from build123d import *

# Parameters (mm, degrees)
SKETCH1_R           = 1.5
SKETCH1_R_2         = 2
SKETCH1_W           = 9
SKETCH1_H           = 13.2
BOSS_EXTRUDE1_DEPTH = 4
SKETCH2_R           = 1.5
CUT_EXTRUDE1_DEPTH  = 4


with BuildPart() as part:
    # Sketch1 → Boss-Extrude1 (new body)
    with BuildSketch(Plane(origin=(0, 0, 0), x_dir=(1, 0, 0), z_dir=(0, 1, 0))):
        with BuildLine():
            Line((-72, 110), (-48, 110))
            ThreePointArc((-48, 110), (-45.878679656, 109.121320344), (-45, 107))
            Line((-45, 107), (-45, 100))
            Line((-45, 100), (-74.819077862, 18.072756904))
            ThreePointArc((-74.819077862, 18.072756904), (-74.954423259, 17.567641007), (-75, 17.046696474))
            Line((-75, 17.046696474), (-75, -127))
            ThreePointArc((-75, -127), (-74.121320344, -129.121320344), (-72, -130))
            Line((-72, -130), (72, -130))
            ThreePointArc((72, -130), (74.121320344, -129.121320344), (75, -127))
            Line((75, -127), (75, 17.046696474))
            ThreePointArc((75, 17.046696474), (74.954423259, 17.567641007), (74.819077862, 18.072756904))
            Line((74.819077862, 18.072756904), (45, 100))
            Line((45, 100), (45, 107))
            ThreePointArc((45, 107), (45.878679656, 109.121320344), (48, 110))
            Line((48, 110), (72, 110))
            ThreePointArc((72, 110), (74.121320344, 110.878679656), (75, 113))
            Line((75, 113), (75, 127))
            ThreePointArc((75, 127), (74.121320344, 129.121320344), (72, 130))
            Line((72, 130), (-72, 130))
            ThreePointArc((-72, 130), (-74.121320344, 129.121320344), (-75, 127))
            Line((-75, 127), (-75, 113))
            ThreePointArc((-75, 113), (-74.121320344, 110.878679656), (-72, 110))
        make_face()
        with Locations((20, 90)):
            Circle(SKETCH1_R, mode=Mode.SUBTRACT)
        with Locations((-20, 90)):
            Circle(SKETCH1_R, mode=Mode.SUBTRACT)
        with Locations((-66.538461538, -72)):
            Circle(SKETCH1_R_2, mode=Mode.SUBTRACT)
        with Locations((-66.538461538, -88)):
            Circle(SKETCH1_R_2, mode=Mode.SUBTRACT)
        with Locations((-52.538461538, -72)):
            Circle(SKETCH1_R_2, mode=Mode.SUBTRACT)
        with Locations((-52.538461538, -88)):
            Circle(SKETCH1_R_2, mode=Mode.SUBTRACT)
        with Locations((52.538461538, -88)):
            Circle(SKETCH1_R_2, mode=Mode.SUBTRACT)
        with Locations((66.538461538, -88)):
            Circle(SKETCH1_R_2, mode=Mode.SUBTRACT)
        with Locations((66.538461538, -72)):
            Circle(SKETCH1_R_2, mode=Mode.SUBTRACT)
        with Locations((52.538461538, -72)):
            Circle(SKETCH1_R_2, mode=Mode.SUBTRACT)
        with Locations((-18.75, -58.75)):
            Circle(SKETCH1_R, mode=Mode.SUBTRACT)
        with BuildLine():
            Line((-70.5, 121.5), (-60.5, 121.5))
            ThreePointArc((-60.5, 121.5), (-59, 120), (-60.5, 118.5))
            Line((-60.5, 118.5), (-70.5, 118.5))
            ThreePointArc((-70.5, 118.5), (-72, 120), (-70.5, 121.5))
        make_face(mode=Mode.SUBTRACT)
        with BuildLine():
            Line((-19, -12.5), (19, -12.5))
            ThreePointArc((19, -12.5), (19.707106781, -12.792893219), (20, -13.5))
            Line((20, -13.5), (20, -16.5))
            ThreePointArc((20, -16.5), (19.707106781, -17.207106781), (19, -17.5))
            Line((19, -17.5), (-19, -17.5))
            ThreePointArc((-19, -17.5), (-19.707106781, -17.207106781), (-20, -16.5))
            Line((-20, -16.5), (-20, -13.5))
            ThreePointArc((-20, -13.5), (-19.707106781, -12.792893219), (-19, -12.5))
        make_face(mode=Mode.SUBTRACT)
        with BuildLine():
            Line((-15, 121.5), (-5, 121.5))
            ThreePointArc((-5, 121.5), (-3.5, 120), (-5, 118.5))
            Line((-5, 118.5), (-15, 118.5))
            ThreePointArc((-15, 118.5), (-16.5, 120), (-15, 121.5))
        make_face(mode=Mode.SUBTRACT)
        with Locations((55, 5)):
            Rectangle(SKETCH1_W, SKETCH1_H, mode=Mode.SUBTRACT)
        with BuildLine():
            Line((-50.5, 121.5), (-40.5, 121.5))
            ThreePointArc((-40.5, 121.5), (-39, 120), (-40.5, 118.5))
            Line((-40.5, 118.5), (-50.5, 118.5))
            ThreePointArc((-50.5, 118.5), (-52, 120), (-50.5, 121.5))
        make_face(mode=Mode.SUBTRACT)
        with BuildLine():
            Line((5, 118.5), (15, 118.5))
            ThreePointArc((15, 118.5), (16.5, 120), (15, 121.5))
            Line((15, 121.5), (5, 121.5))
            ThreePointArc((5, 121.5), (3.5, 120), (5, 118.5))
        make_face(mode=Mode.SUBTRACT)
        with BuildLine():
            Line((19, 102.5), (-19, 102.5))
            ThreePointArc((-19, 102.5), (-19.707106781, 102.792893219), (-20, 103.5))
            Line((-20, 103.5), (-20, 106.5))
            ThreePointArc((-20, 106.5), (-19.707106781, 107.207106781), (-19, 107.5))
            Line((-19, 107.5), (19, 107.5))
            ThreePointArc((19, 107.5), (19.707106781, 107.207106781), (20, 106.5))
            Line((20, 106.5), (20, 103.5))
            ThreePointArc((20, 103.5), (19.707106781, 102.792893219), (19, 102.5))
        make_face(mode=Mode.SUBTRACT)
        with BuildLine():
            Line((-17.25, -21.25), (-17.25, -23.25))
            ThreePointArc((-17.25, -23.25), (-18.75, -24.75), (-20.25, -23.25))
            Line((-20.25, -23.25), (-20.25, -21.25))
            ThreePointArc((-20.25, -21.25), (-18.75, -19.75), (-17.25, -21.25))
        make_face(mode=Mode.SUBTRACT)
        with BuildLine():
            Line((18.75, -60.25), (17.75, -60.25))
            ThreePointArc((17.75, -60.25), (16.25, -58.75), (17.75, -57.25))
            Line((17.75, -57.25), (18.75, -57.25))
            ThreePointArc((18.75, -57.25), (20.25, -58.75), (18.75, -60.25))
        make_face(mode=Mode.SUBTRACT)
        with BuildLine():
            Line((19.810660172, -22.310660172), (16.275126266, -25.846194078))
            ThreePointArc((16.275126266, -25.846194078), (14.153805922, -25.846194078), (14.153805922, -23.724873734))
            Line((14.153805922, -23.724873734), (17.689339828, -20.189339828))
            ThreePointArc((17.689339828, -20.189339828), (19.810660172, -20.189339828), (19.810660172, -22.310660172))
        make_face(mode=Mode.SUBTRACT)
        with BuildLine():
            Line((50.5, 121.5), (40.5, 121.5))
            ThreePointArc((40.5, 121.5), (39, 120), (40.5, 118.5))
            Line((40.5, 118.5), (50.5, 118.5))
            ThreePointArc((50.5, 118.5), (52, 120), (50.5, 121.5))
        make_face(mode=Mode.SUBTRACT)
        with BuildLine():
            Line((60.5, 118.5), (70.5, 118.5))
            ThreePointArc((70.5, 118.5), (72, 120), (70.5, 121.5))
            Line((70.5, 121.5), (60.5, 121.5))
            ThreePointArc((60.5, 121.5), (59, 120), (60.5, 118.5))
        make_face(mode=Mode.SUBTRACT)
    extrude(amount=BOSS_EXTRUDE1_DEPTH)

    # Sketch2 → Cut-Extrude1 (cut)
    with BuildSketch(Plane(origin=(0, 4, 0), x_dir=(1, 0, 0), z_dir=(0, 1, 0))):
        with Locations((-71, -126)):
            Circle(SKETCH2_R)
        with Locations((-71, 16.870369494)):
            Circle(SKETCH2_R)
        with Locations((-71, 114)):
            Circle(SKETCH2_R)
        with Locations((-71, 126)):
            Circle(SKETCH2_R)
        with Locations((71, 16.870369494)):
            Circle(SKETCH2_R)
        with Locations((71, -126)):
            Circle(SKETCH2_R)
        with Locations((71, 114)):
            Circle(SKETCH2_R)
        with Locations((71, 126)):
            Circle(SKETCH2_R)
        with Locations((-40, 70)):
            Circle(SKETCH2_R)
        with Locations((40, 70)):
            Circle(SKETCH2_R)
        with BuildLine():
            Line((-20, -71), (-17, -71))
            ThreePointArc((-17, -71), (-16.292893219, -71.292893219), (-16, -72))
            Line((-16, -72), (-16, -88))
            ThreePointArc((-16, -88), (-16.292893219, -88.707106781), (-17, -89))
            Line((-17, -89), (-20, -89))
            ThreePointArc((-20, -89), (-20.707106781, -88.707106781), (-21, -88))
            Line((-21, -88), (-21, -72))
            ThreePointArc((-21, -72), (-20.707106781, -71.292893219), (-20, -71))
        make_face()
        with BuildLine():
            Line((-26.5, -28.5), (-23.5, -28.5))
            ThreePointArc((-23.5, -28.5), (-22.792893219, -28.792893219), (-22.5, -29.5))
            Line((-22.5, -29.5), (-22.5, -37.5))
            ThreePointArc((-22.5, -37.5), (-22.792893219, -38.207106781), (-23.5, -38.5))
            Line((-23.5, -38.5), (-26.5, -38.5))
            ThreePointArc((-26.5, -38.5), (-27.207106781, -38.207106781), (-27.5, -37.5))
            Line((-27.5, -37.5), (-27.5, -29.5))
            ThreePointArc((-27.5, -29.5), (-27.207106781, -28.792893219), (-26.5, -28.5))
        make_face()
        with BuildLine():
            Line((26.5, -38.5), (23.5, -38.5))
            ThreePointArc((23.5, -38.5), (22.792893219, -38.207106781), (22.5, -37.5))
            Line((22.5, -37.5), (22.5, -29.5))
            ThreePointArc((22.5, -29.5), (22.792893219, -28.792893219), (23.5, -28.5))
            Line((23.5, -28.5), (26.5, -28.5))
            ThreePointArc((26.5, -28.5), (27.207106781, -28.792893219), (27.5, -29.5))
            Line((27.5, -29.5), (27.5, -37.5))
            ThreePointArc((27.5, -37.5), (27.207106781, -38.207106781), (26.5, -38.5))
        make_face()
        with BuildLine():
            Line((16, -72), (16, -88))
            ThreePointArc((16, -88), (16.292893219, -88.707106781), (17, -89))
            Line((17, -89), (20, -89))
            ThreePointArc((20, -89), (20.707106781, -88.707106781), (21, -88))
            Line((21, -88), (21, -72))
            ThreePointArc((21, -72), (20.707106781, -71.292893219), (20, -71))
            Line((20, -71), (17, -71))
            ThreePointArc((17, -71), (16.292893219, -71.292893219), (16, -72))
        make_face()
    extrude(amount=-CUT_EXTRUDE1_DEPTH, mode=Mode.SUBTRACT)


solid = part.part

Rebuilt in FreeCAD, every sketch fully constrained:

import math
import FreeCAD as App
import Part
import Sketcher

V = App.Vector
Q = App.Units.Quantity

doc = App.newDocument("Part")
params = doc.addObject("Spreadsheet::Sheet", "Params")
for row, (alias, value) in enumerate([
    ("sketch1_diameter", "4 mm"),
    ("sketch1_diameter2", "3 mm"),
    ("sketch1_radius", "3 mm"),
    ("sketch1_radius2", "1 mm"),
    ("sketch1_width", "24 mm"),
    ("pad1_length", "4 mm"),
    ("sketch2_diameter", "3 mm"),
    ("sketch2_radius", "1 mm"),
    ("sketch2_width", "3 mm"),
    ("sketch2_height", "16 mm"),
    ("sketch2_height2", "8 mm"),
    ("pocket1_length", "4 mm"),
], start=1):
    params.set(f"A{row}", alias)
    params.set(f"B{row}", "=" + value)
    params.setAlias(f"B{row}", alias)

body = doc.addObject("PartDesign::Body", "Body")

# Sketch on XZ plane
sketch1 = body.newObject("Sketcher::SketchObject", "Sketch")
sketch1.AttachmentSupport = (doc.getObject("XZ_Plane"), [""])
sketch1.MapMode = "FlatFace"
sketch1.addGeometry(Part.LineSegment(V(-72, -110, 0), V(-48, -110, 0)), False)
sketch1.addGeometry(Part.ArcOfCircle(Part.Circle(V(-48, -107, 0), V(0, 0, 1), 3), math.radians(-90), math.radians(0)), False)
sketch1.addGeometry(Part.LineSegment(V(-45, -107, 0), V(-45, -100, 0)), False)
sketch1.addGeometry(Part.LineSegment(V(-45, -100, 0), V(-74.8, -18.1, 0)), False)
sketch1.addGeometry(Part.ArcOfCircle(Part.Circle(V(-72, -17, 0), V(0, 0, 1), 3), math.radians(180), math.radians(200)), False)
sketch1.addGeometry(Part.LineSegment(V(-75, -17, 0), V(-75, 127, 0)), False)
sketch1.addGeometry(Part.ArcOfCircle(Part.Circle(V(-72, 127, 0), V(0, 0, 1), 3), math.radians(90), math.radians(180)), False)
sketch1.addGeometry(Part.LineSegment(V(-72, 130, 0), V(72, 130, 0)), False)
sketch1.addGeometry(Part.ArcOfCircle(Part.Circle(V(72, 127, 0), V(0, 0, 1), 3), math.radians(0), math.radians(90)), False)
sketch1.addGeometry(Part.LineSegment(V(75, 127, 0), V(75, -17, 0)), False)
sketch1.addGeometry(Part.ArcOfCircle(Part.Circle(V(72, -17, 0), V(0, 0, 1), 3), math.radians(-20), math.radians(0)), False)
sketch1.addGeometry(Part.LineSegment(V(74.8, -18.1, 0), V(45, -100, 0)), False)
sketch1.addGeometry(Part.LineSegment(V(45, -100, 0), V(45, -107, 0)), False)
sketch1.addGeometry(Part.ArcOfCircle(Part.Circle(V(48, -107, 0), V(0, 0, 1), 3), math.radians(180), math.radians(270)), False)
sketch1.addGeometry(Part.LineSegment(V(48, -110, 0), V(72, -110, 0)), False)
sketch1.addGeometry(Part.ArcOfCircle(Part.Circle(V(72, -113, 0), V(0, 0, 1), 3), math.radians(0), math.radians(90)), False)
sketch1.addGeometry(Part.LineSegment(V(75, -113, 0), V(75, -127, 0)), False)
sketch1.addGeometry(Part.ArcOfCircle(Part.Circle(V(72, -127, 0), V(0, 0, 1), 3), math.radians(-90), math.radians(0)), False)
sketch1.addGeometry(Part.LineSegment(V(72, -130, 0), V(-72, -130, 0)), False)
sketch1.addGeometry(Part.ArcOfCircle(Part.Circle(V(-72, -127, 0), V(0, 0, 1), 3), math.radians(180), math.radians(270)), False)
sketch1.addGeometry(Part.LineSegment(V(-75, -127, 0), V(-75, -113, 0)), False)
sketch1.addGeometry(Part.ArcOfCircle(Part.Circle(V(-72, -113, 0), V(0, 0, 1), 3), math.radians(90), math.radians(180)), False)
sketch1.addGeometry(Part.Circle(V(-66.5, 88, 0), V(0, 0, 1), 2), False)
sketch1.addGeometry(Part.Circle(V(-66.5, 72, 0), V(0, 0, 1), 2), False)
sketch1.addGeometry(Part.Circle(V(-52.5, 88, 0), V(0, 0, 1), 2), False)
sketch1.addGeometry(Part.Circle(V(-52.5, 72, 0), V(0, 0, 1), 2), False)
sketch1.addGeometry(Part.Circle(V(-18.8, 58.8, 0), V(0, 0, 1), 1.5), False)
sketch1.addGeometry(Part.ArcOfCircle(Part.Circle(V(-18.8, 21.2, 0), V(0, 0, 1), 1.5), math.radians(180), math.radians(360)), False)
sketch1.addGeometry(Part.LineSegment(V(-17.2, 21.2, 0), V(-17.2, 23.2, 0)), False)
sketch1.addGeometry(Part.ArcOfCircle(Part.Circle(V(-18.8, 23.2, 0), V(0, 0, 1), 1.5), math.radians(0), math.radians(180)), False)
sketch1.addGeometry(Part.LineSegment(V(-20.2, 23.2, 0), V(-20.2, 21.2, 0)), False)
sketch1.addGeometry(Part.ArcOfCircle(Part.Circle(V(18.8, 58.8, 0), V(0, 0, 1), 1.5), math.radians(-90), math.radians(90)), False)
sketch1.addGeometry(Part.LineSegment(V(18.8, 60.2, 0), V(17.8, 60.2, 0)), False)
sketch1.addGeometry(Part.ArcOfCircle(Part.Circle(V(17.8, 58.8, 0), V(0, 0, 1), 1.5), math.radians(90), math.radians(270)), False)
sketch1.addGeometry(Part.LineSegment(V(17.8, 57.2, 0), V(18.8, 57.2, 0)), False)
sketch1.addGeometry(Part.Circle(V(52.5, 88, 0), V(0, 0, 1), 2), False)
sketch1.addGeometry(Part.Circle(V(52.5, 72, 0), V(0, 0, 1), 2), False)
sketch1.addGeometry(Part.Circle(V(66.5, 88, 0), V(0, 0, 1), 2), False)
sketch1.addGeometry(Part.Circle(V(66.5, 72, 0), V(0, 0, 1), 2), False)
sketch1.addGeometry(Part.ArcOfCircle(Part.Circle(V(-19, 13.5, 0), V(0, 0, 1), 1), math.radians(-180), math.radians(-90)), False)
sketch1.addGeometry(Part.LineSegment(V(-19, 12.5, 0), V(19, 12.5, 0)), False)
sketch1.addGeometry(Part.ArcOfCircle(Part.Circle(V(19, 13.5, 0), V(0, 0, 1), 1), math.radians(-90), math.radians(0)), False)
sketch1.addGeometry(Part.LineSegment(V(20, 13.5, 0), V(20, 16.5, 0)), False)
sketch1.addGeometry(Part.ArcOfCircle(Part.Circle(V(19, 16.5, 0), V(0, 0, 1), 1), math.radians(0), math.radians(90)), False)
sketch1.addGeometry(Part.LineSegment(V(19, 17.5, 0), V(-19, 17.5, 0)), False)
sketch1.addGeometry(Part.ArcOfCircle(Part.Circle(V(-19, 16.5, 0), V(0, 0, 1), 1), math.radians(90), math.radians(180)), False)
sketch1.addGeometry(Part.LineSegment(V(-20, 16.5, 0), V(-20, 13.5, 0)), False)
sketch1.addGeometry(Part.ArcOfCircle(Part.Circle(V(18.8, 21.2, 0), V(0, 0, 1), 1.5), math.radians(-135), math.radians(45)), False)
sketch1.addGeometry(Part.LineSegment(V(19.8, 22.3, 0), V(16.3, 25.8, 0)), False)
sketch1.addGeometry(Part.ArcOfCircle(Part.Circle(V(15.2, 24.8, 0), V(0, 0, 1), 1.5), math.radians(45), math.radians(225)), False)
sketch1.addGeometry(Part.LineSegment(V(14.2, 23.7, 0), V(17.7, 20.2, 0)), False)
sketch1.addGeometry(Part.LineSegment(V(59.5, 1.6, 0), V(50.5, 1.6, 0)), False)
sketch1.addGeometry(Part.LineSegment(V(50.5, 1.6, 0), V(50.5, -11.6, 0)), False)
sketch1.addGeometry(Part.LineSegment(V(50.5, -11.6, 0), V(59.5, -11.6, 0)), False)
sketch1.addGeometry(Part.LineSegment(V(59.5, -11.6, 0), V(59.5, 1.6, 0)), False)
sketch1.addGeometry(Part.ArcOfCircle(Part.Circle(V(-70.5, -120, 0), V(0, 0, 1), 1.5), math.radians(90), math.radians(270)), False)
sketch1.addGeometry(Part.LineSegment(V(-70.5, -121.5, 0), V(-60.5, -121.5, 0)), False)
sketch1.addGeometry(Part.ArcOfCircle(Part.Circle(V(-60.5, -120, 0), V(0, 0, 1), 1.5), math.radians(-90), math.radians(90)), False)
sketch1.addGeometry(Part.LineSegment(V(-60.5, -118.5, 0), V(-70.5, -118.5, 0)), False)
sketch1.addGeometry(Part.ArcOfCircle(Part.Circle(V(-50.5, -120, 0), V(0, 0, 1), 1.5), math.radians(90), math.radians(270)), False)
sketch1.addGeometry(Part.LineSegment(V(-50.5, -121.5, 0), V(-40.5, -121.5, 0)), False)
sketch1.addGeometry(Part.ArcOfCircle(Part.Circle(V(-40.5, -120, 0), V(0, 0, 1), 1.5), math.radians(-90), math.radians(90)), False)
sketch1.addGeometry(Part.LineSegment(V(-40.5, -118.5, 0), V(-50.5, -118.5, 0)), False)
sketch1.addGeometry(Part.Circle(V(-20, -90, 0), V(0, 0, 1), 1.5), False)
sketch1.addGeometry(Part.ArcOfCircle(Part.Circle(V(-15, -120, 0), V(0, 0, 1), 1.5), math.radians(90), math.radians(270)), False)
sketch1.addGeometry(Part.LineSegment(V(-15, -121.5, 0), V(-5, -121.5, 0)), False)
sketch1.addGeometry(Part.ArcOfCircle(Part.Circle(V(-5, -120, 0), V(0, 0, 1), 1.5), math.radians(-90), math.radians(90)), False)
sketch1.addGeometry(Part.LineSegment(V(-5, -118.5, 0), V(-15, -118.5, 0)), False)
sketch1.addGeometry(Part.Circle(V(20, -90, 0), V(0, 0, 1), 1.5), False)
sketch1.addGeometry(Part.ArcOfCircle(Part.Circle(V(19, -103.5, 0), V(0, 0, 1), 1), math.radians(0), math.radians(90)), False)
sketch1.addGeometry(Part.LineSegment(V(19, -102.5, 0), V(-19, -102.5, 0)), False)
sketch1.addGeometry(Part.ArcOfCircle(Part.Circle(V(-19, -103.5, 0), V(0, 0, 1), 1), math.radians(90), math.radians(180)), False)
sketch1.addGeometry(Part.LineSegment(V(-20, -103.5, 0), V(-20, -106.5, 0)), False)
sketch1.addGeometry(Part.ArcOfCircle(Part.Circle(V(-19, -106.5, 0), V(0, 0, 1), 1), math.radians(-180), math.radians(-90)), False)
sketch1.addGeometry(Part.LineSegment(V(-19, -107.5, 0), V(19, -107.5, 0)), False)
sketch1.addGeometry(Part.ArcOfCircle(Part.Circle(V(19, -106.5, 0), V(0, 0, 1), 1), math.radians(-90), math.radians(0)), False)
sketch1.addGeometry(Part.LineSegment(V(20, -106.5, 0), V(20, -103.5, 0)), False)
sketch1.addGeometry(Part.LineSegment(V(15, -118.5, 0), V(5, -118.5, 0)), False)
sketch1.addGeometry(Part.ArcOfCircle(Part.Circle(V(5, -120, 0), V(0, 0, 1), 1.5), math.radians(90), math.radians(270)), False)
sketch1.addGeometry(Part.LineSegment(V(5, -121.5, 0), V(15, -121.5, 0)), False)
sketch1.addGeometry(Part.ArcOfCircle(Part.Circle(V(15, -120, 0), V(0, 0, 1), 1.5), math.radians(-90), math.radians(90)), False)
sketch1.addGeometry(Part.LineSegment(V(40.5, -121.5, 0), V(50.5, -121.5, 0)), False)
sketch1.addGeometry(Part.ArcOfCircle(Part.Circle(V(50.5, -120, 0), V(0, 0, 1), 1.5), math.radians(-90), math.radians(90)), False)
sketch1.addGeometry(Part.LineSegment(V(50.5, -118.5, 0), V(40.5, -118.5, 0)), False)
sketch1.addGeometry(Part.ArcOfCircle(Part.Circle(V(40.5, -120, 0), V(0, 0, 1), 1.5), math.radians(90), math.radians(270)), False)
sketch1.addGeometry(Part.LineSegment(V(70.5, -118.5, 0), V(60.5, -118.5, 0)), False)
sketch1.addGeometry(Part.ArcOfCircle(Part.Circle(V(60.5, -120, 0), V(0, 0, 1), 1.5), math.radians(90), math.radians(270)), False)
sketch1.addGeometry(Part.LineSegment(V(60.5, -121.5, 0), V(70.5, -121.5, 0)), False)
sketch1.addGeometry(Part.ArcOfCircle(Part.Circle(V(70.5, -120, 0), V(0, 0, 1), 1.5), math.radians(-90), math.radians(90)), False)
sketch1.addConstraint(Sketcher.Constraint("Tangent", 0, 2, 1, 1))
sketch1.addConstraint(Sketcher.Constraint("Tangent", 1, 2, 2, 1))
sketch1.addConstraint(Sketcher.Constraint("Coincident", 2, 2, 3, 1))
sketch1.addConstraint(Sketcher.Constraint("Tangent", 3, 2, 4, 2))
sketch1.addConstraint(Sketcher.Constraint("Tangent", 4, 1, 5, 1))
sketch1.addConstraint(Sketcher.Constraint("Tangent", 5, 2, 6, 2))
sketch1.addConstraint(Sketcher.Constraint("Tangent", 6, 1, 7, 1))
sketch1.addConstraint(Sketcher.Constraint("Tangent", 7, 2, 8, 2))
sketch1.addConstraint(Sketcher.Constraint("Tangent", 8, 1, 9, 1))
sketch1.addConstraint(Sketcher.Constraint("Tangent", 9, 2, 10, 2))
sketch1.addConstraint(Sketcher.Constraint("Tangent", 10, 1, 11, 1))
sketch1.addConstraint(Sketcher.Constraint("Coincident", 11, 2, 12, 1))
sketch1.addConstraint(Sketcher.Constraint("Tangent", 12, 2, 13, 1))
sketch1.addConstraint(Sketcher.Constraint("Tangent", 13, 2, 14, 1))
sketch1.addConstraint(Sketcher.Constraint("Tangent", 14, 2, 15, 2))
sketch1.addConstraint(Sketcher.Constraint("Tangent", 15, 1, 16, 1))
sketch1.addConstraint(Sketcher.Constraint("Tangent", 16, 2, 17, 2))
sketch1.addConstraint(Sketcher.Constraint("Tangent", 17, 1, 18, 1))
sketch1.addConstraint(Sketcher.Constraint("Tangent", 18, 2, 19, 2))
sketch1.addConstraint(Sketcher.Constraint("Tangent", 19, 1, 20, 1))
sketch1.addConstraint(Sketcher.Constraint("Tangent", 20, 2, 21, 2))
sketch1.addConstraint(Sketcher.Constraint("Tangent", 21, 1, 0, 1))
sketch1.addConstraint(Sketcher.Constraint("Tangent", 27, 2, 28, 1))
sketch1.addConstraint(Sketcher.Constraint("Tangent", 28, 2, 29, 1))
sketch1.addConstraint(Sketcher.Constraint("Tangent", 29, 2, 30, 1))
sketch1.addConstraint(Sketcher.Constraint("Tangent", 30, 2, 27, 1))
sketch1.addConstraint(Sketcher.Constraint("Tangent", 31, 2, 32, 1))
sketch1.addConstraint(Sketcher.Constraint("Tangent", 32, 2, 33, 1))
sketch1.addConstraint(Sketcher.Constraint("Tangent", 33, 2, 34, 1))
sketch1.addConstraint(Sketcher.Constraint("Tangent", 34, 2, 31, 1))
sketch1.addConstraint(Sketcher.Constraint("Tangent", 39, 2, 40, 1))
sketch1.addConstraint(Sketcher.Constraint("Tangent", 40, 2, 41, 1))
sketch1.addConstraint(Sketcher.Constraint("Tangent", 41, 2, 42, 1))
sketch1.addConstraint(Sketcher.Constraint("Tangent", 42, 2, 43, 1))
sketch1.addConstraint(Sketcher.Constraint("Tangent", 43, 2, 44, 1))
sketch1.addConstraint(Sketcher.Constraint("Tangent", 44, 2, 45, 1))
sketch1.addConstraint(Sketcher.Constraint("Tangent", 45, 2, 46, 1))
sketch1.addConstraint(Sketcher.Constraint("Tangent", 46, 2, 39, 1))
sketch1.addConstraint(Sketcher.Constraint("Tangent", 47, 2, 48, 1))
sketch1.addConstraint(Sketcher.Constraint("Tangent", 48, 2, 49, 1))
sketch1.addConstraint(Sketcher.Constraint("Tangent", 49, 2, 50, 1))
sketch1.addConstraint(Sketcher.Constraint("Tangent", 50, 2, 47, 1))
sketch1.addConstraint(Sketcher.Constraint("Coincident", 51, 2, 52, 1))
sketch1.addConstraint(Sketcher.Constraint("Coincident", 52, 2, 53, 1))
sketch1.addConstraint(Sketcher.Constraint("Coincident", 53, 2, 54, 1))
sketch1.addConstraint(Sketcher.Constraint("Coincident", 54, 2, 51, 1))
sketch1.addConstraint(Sketcher.Constraint("Tangent", 55, 2, 56, 1))
sketch1.addConstraint(Sketcher.Constraint("Tangent", 56, 2, 57, 1))
sketch1.addConstraint(Sketcher.Constraint("Tangent", 57, 2, 58, 1))
sketch1.addConstraint(Sketcher.Constraint("Tangent", 58, 2, 55, 1))
sketch1.addConstraint(Sketcher.Constraint("Tangent", 59, 2, 60, 1))
sketch1.addConstraint(Sketcher.Constraint("Tangent", 60, 2, 61, 1))
sketch1.addConstraint(Sketcher.Constraint("Tangent", 61, 2, 62, 1))
sketch1.addConstraint(Sketcher.Constraint("Tangent", 62, 2, 59, 1))
sketch1.addConstraint(Sketcher.Constraint("Tangent", 64, 2, 65, 1))
sketch1.addConstraint(Sketcher.Constraint("Tangent", 65, 2, 66, 1))
sketch1.addConstraint(Sketcher.Constraint("Tangent", 66, 2, 67, 1))
sketch1.addConstraint(Sketcher.Constraint("Tangent", 67, 2, 64, 1))
sketch1.addConstraint(Sketcher.Constraint("Tangent", 69, 2, 70, 1))
sketch1.addConstraint(Sketcher.Constraint("Tangent", 70, 2, 71, 1))
sketch1.addConstraint(Sketcher.Constraint("Tangent", 71, 2, 72, 1))
sketch1.addConstraint(Sketcher.Constraint("Tangent", 72, 2, 73, 1))
sketch1.addConstraint(Sketcher.Constraint("Tangent", 73, 2, 74, 1))
sketch1.addConstraint(Sketcher.Constraint("Tangent", 74, 2, 75, 1))
sketch1.addConstraint(Sketcher.Constraint("Tangent", 75, 2, 76, 1))
sketch1.addConstraint(Sketcher.Constraint("Tangent", 76, 2, 69, 1))
sketch1.addConstraint(Sketcher.Constraint("Tangent", 77, 2, 78, 1))
sketch1.addConstraint(Sketcher.Constraint("Tangent", 78, 2, 79, 1))
sketch1.addConstraint(Sketcher.Constraint("Tangent", 79, 2, 80, 1))
sketch1.addConstraint(Sketcher.Constraint("Tangent", 80, 2, 77, 1))
sketch1.addConstraint(Sketcher.Constraint("Tangent", 81, 2, 82, 1))
sketch1.addConstraint(Sketcher.Constraint("Tangent", 82, 2, 83, 1))
sketch1.addConstraint(Sketcher.Constraint("Tangent", 83, 2, 84, 1))
sketch1.addConstraint(Sketcher.Constraint("Tangent", 84, 2, 81, 1))
sketch1.addConstraint(Sketcher.Constraint("Tangent", 85, 2, 86, 1))
sketch1.addConstraint(Sketcher.Constraint("Tangent", 86, 2, 87, 1))
sketch1.addConstraint(Sketcher.Constraint("Tangent", 87, 2, 88, 1))
sketch1.addConstraint(Sketcher.Constraint("Tangent", 88, 2, 85, 1))
sketch1.addConstraint(Sketcher.Constraint("Horizontal", 0))
sketch1.addConstraint(Sketcher.Constraint("Vertical", 2))
sketch1.addConstraint(Sketcher.Constraint("Vertical", 5))
sketch1.addConstraint(Sketcher.Constraint("Horizontal", 7))
sketch1.addConstraint(Sketcher.Constraint("Vertical", 9))
sketch1.addConstraint(Sketcher.Constraint("Vertical", 12))
sketch1.addConstraint(Sketcher.Constraint("Horizontal", 14))
sketch1.addConstraint(Sketcher.Constraint("Vertical", 16))
sketch1.addConstraint(Sketcher.Constraint("Horizontal", 18))
sketch1.addConstraint(Sketcher.Constraint("Vertical", 20))
sketch1.addConstraint(Sketcher.Constraint("Vertical", 28))
sketch1.addConstraint(Sketcher.Constraint("Vertical", 30))
sketch1.addConstraint(Sketcher.Constraint("Horizontal", 32))
sketch1.addConstraint(Sketcher.Constraint("Horizontal", 34))
sketch1.addConstraint(Sketcher.Constraint("Horizontal", 40))
sketch1.addConstraint(Sketcher.Constraint("Vertical", 42))
sketch1.addConstraint(Sketcher.Constraint("Horizontal", 44))
sketch1.addConstraint(Sketcher.Constraint("Vertical", 46))
sketch1.addConstraint(Sketcher.Constraint("Horizontal", 51))
sketch1.addConstraint(Sketcher.Constraint("Vertical", 52))
sketch1.addConstraint(Sketcher.Constraint("Horizontal", 53))
sketch1.addConstraint(Sketcher.Constraint("Vertical", 54))
sketch1.addConstraint(Sketcher.Constraint("Horizontal", 56))
sketch1.addConstraint(Sketcher.Constraint("Horizontal", 58))
sketch1.addConstraint(Sketcher.Constraint("Horizontal", 60))
sketch1.addConstraint(Sketcher.Constraint("Horizontal", 62))
sketch1.addConstraint(Sketcher.Constraint("Horizontal", 65))
sketch1.addConstraint(Sketcher.Constraint("Horizontal", 67))
sketch1.addConstraint(Sketcher.Constraint("Horizontal", 70))
sketch1.addConstraint(Sketcher.Constraint("Vertical", 72))
sketch1.addConstraint(Sketcher.Constraint("Horizontal", 74))
sketch1.addConstraint(Sketcher.Constraint("Vertical", 76))
sketch1.addConstraint(Sketcher.Constraint("Horizontal", 77))
sketch1.addConstraint(Sketcher.Constraint("Horizontal", 79))
sketch1.addConstraint(Sketcher.Constraint("Horizontal", 81))
sketch1.addConstraint(Sketcher.Constraint("Horizontal", 83))
sketch1.addConstraint(Sketcher.Constraint("Horizontal", 85))
sketch1.addConstraint(Sketcher.Constraint("Horizontal", 87))
sketch1.addConstraint(Sketcher.Constraint("Equal", 1, 4))
sketch1.addConstraint(Sketcher.Constraint("Equal", 4, 6))
sketch1.addConstraint(Sketcher.Constraint("Equal", 6, 8))
sketch1.addConstraint(Sketcher.Constraint("Equal", 8, 10))
sketch1.addConstraint(Sketcher.Constraint("Equal", 10, 13))
sketch1.addConstraint(Sketcher.Constraint("Equal", 13, 15))
sketch1.addConstraint(Sketcher.Constraint("Equal", 15, 17))
sketch1.addConstraint(Sketcher.Constraint("Equal", 17, 19))
sketch1.addConstraint(Sketcher.Constraint("Equal", 19, 21))
sketch1.addConstraint(Sketcher.Constraint("Equal", 22, 23))
sketch1.addConstraint(Sketcher.Constraint("Equal", 23, 24))
sketch1.addConstraint(Sketcher.Constraint("Equal", 24, 25))
sketch1.addConstraint(Sketcher.Constraint("Equal", 26, 27))
sketch1.addConstraint(Sketcher.Constraint("Equal", 29, 31))
sketch1.addConstraint(Sketcher.Constraint("Equal", 25, 35))
sketch1.addConstraint(Sketcher.Constraint("Equal", 35, 36))
sketch1.addConstraint(Sketcher.Constraint("Equal", 36, 37))
sketch1.addConstraint(Sketcher.Constraint("Equal", 37, 38))
sketch1.addConstraint(Sketcher.Constraint("Equal", 39, 41))
sketch1.addConstraint(Sketcher.Constraint("Equal", 41, 43))
sketch1.addConstraint(Sketcher.Constraint("Equal", 43, 45))
sketch1.addConstraint(Sketcher.Constraint("Equal", 33, 47))
sketch1.addConstraint(Sketcher.Constraint("Equal", 47, 49))
sketch1.addConstraint(Sketcher.Constraint("Equal", 49, 55))
sketch1.addConstraint(Sketcher.Constraint("Equal", 57, 59))
sketch1.addConstraint(Sketcher.Constraint("Equal", 61, 63))
sketch1.addConstraint(Sketcher.Constraint("Equal", 63, 64))
sketch1.addConstraint(Sketcher.Constraint("Equal", 66, 68))
sketch1.addConstraint(Sketcher.Constraint("Equal", 45, 69))
sketch1.addConstraint(Sketcher.Constraint("Equal", 69, 71))
sketch1.addConstraint(Sketcher.Constraint("Equal", 71, 73))
sketch1.addConstraint(Sketcher.Constraint("Equal", 73, 75))
sketch1.addConstraint(Sketcher.Constraint("Equal", 68, 78))
sketch1.addConstraint(Sketcher.Constraint("Equal", 80, 82))
sketch1.addConstraint(Sketcher.Constraint("Equal", 84, 86))
sketch1.addConstraint(Sketcher.Constraint("Symmetric", 6, 3, 17, 3, -1, 1))
sketch1.addConstraint(Sketcher.Constraint("Symmetric", 4, 3, 10, 3, -2))
sketch1.addConstraint(Sketcher.Constraint("Symmetric", 1, 3, 13, 3, -2))
sketch1.addConstraint(Sketcher.Constraint("Symmetric", 26, 3, 31, 3, -2))
sketch1.addConstraint(Sketcher.Constraint("Symmetric", 24, 3, 35, 3, -2))
sketch1.addConstraint(Sketcher.Constraint("Symmetric", 25, 3, 36, 3, -2))
sketch1.addConstraint(Sketcher.Constraint("Symmetric", 22, 3, 37, 3, -2))
sketch1.addConstraint(Sketcher.Constraint("Symmetric", 23, 3, 38, 3, -2))
sketch1.addConstraint(Sketcher.Constraint("Symmetric", 27, 3, 47, 3, -2))
sketch1.addConstraint(Sketcher.Constraint("Symmetric", 63, 3, 68, 3, -2))
sketch1.addConstraint(Sketcher.Constraint("Symmetric", 66, 3, 78, 3, -2))
sketch1.addConstraint(Sketcher.Constraint("Symmetric", 59, 3, 82, 3, -2))
sketch1.addConstraint(Sketcher.Constraint("Symmetric", 57, 3, 86, 3, -2))
sketch1.addConstraint(Sketcher.Constraint("Horizontal", 22, 3, 24, 3))
sketch1.addConstraint(Sketcher.Constraint("Horizontal", 23, 3, 25, 3))
sketch1.addConstraint(Sketcher.Constraint("Horizontal", 57, 3, 59, 3))
sketch1.addConstraint(Sketcher.Constraint("Horizontal", 61, 3, 64, 3))
sketch1.addConstraint(Sketcher.Constraint("Horizontal", 3, 2, 10, 1))
sketch1.addConstraint(Sketcher.Constraint("Vertical", 6, 3, 19, 3))
sketch1.addConstraint(Sketcher.Constraint("Vertical", 22, 3, 23, 3))
sketch1.addConstraint(Sketcher.Constraint("Vertical", 24, 3, 25, 3))
sketch1.addConstraint(Sketcher.Constraint("Vertical", 26, 3, 27, 3))
sketch1.addConstraint(Sketcher.Constraint("Vertical", 43, 3, 69, 3))
sketch1.addConstraint(Sketcher.Constraint("Vertical", 45, 3, 71, 3))
sketch1.addConstraint(Sketcher.Constraint("Vertical", 68, 3, 41, 2))
sketch1.addConstraint(Sketcher.Constraint("Vertical", 63, 3, 45, 2))
sketch1.addConstraint(Sketcher.Constraint("Vertical", 82, 3, 51, 2))
sketch1.addConstraint(Sketcher.Constraint("Equal", 58, 60))
sketch1.addConstraint(Sketcher.Constraint("Equal", 62, 65))
sketch1.addConstraint(Sketcher.Constraint("Equal", 67, 77))
sketch1.addConstraint(Sketcher.Constraint("Equal", 79, 81))
sketch1.addConstraint(Sketcher.Constraint("Equal", 83, 85))
sketch1.addConstraint(Sketcher.Constraint("Equal", 46, 72))
sketch1.addConstraint(Sketcher.Constraint("Diameter", 22, Q("4 mm")))
sketch1.addConstraint(Sketcher.Constraint("Diameter", 26, Q("3 mm")))
sketch1.addConstraint(Sketcher.Constraint("Radius", 1, Q("3 mm")))
sketch1.addConstraint(Sketcher.Constraint("Radius", 39, Q("1 mm")))
sketch1.addConstraint(Sketcher.Constraint("DistanceX", 0, 1, 0, 2, Q("24 mm")))
sketch1.addConstraint(Sketcher.Constraint("DistanceX", 7, 1, 7, 2, Q("144 mm")))
sketch1.addConstraint(Sketcher.Constraint("DistanceX", 32, 2, 32, 1, Q("1 mm")))
sketch1.addConstraint(Sketcher.Constraint("DistanceX", 40, 1, 40, 2, Q("38 mm")))
sketch1.addConstraint(Sketcher.Constraint("DistanceX", 51, 2, 51, 1, Q("9 mm")))
sketch1.addConstraint(Sketcher.Constraint("DistanceX", 56, 1, 56, 2, Q("10 mm")))
sketch1.addConstraint(Sketcher.Constraint("DistanceY", 2, 1, 2, 2, Q("7 mm")))
sketch1.addConstraint(Sketcher.Constraint("DistanceY", 16, 2, 16, 1, Q("14 mm")))
sketch1.addConstraint(Sketcher.Constraint("DistanceY", 28, 1, 28, 2, Q("2 mm")))
sketch1.addConstraint(Sketcher.Constraint("DistanceY", 42, 1, 42, 2, Q("3 mm")))
sketch1.addConstraint(Sketcher.Constraint("Angle", 3, Q("110 deg")))
sketch1.addConstraint(Sketcher.Constraint("Angle", 48, Q("135 deg")))
sketch1.addConstraint(Sketcher.Constraint("Distance", 48, Q("5 mm")))
sketch1.addConstraint(Sketcher.Constraint("DistanceY", 52, 2, 52, 1, Q("13.2 mm")))
sketch1.addConstraint(Sketcher.Constraint("DistanceY", 1, 3, -1, 1, Q("107 mm")))
sketch1.addConstraint(Sketcher.Constraint("DistanceY", -1, 1, 22, 3, Q("88 mm")))
sketch1.addConstraint(Sketcher.Constraint("DistanceY", -1, 1, 23, 3, Q("72 mm")))
sketch1.addConstraint(Sketcher.Constraint("DistanceY", 55, 3, -1, 1, Q("120 mm")))
sketch1.addConstraint(Sketcher.Constraint("DistanceY", 63, 3, -1, 1, Q("90 mm")))
sketch1.addConstraint(Sketcher.Constraint("DistanceX", 64, 3, -1, 1, Q("15 mm")))
sketch1.addConstraint(Sketcher.Constraint("DistanceY", -1, 1, 39, 3, Q("13.5 mm")))
sketch1.addConstraint(Sketcher.Constraint("DistanceX", 55, 3, -1, 1, Q("70.5 mm")))
sketch1.addConstraint(Sketcher.Constraint("DistanceX", 59, 3, -1, 1, Q("50.5 mm")))
sketch1.addConstraint(Sketcher.Constraint("DistanceY", 69, 3, -1, 1, Q("103.5 mm")))
sketch1.addConstraint(Sketcher.Constraint("DistanceY", -1, 1, 51, 2, Q("1.6 mm")))
sketch1.addConstraint(Sketcher.Constraint("DistanceX", 26, 3, -1, 1, Q("18.75 mm")))
sketch1.addConstraint(Sketcher.Constraint("DistanceY", -1, 1, 26, 3, Q("58.75 mm")))
sketch1.addConstraint(Sketcher.Constraint("DistanceY", -1, 1, 27, 3, Q("21.25 mm")))
sketch1.addConstraint(Sketcher.Constraint("DistanceX", 22, 3, -1, 1, Q("66.538462 mm")))
sketch1.addConstraint(Sketcher.Constraint("DistanceX", 24, 3, -1, 1, Q("52.538462 mm")))
sketch1.setExpression("Constraints[184]", "Params.sketch1_diameter")
sketch1.setExpression("Constraints[185]", "Params.sketch1_diameter2")
sketch1.setExpression("Constraints[186]", "Params.sketch1_radius")
sketch1.setExpression("Constraints[187]", "Params.sketch1_radius2")
sketch1.setExpression("Constraints[188]", "Params.sketch1_width")
pad1 = body.newObject("PartDesign::Pad", "Pad")
pad1.Profile = sketch1
pad1.setExpression("Length", "Params.pad1_length")
pad1.Reversed = True

# Sketch on XZ plane
sketch2 = body.newObject("Sketcher::SketchObject", "Sketch001")
sketch2.AttachmentSupport = (doc.getObject("XZ_Plane"), [""])
sketch2.MapMode = "FlatFace"
sketch2.AttachmentOffset = App.Placement(V(0, 0, -4), App.Rotation())
sketch2.addGeometry(Part.Circle(V(-71, 126, 0), V(0, 0, 1), 1.5), False)
sketch2.addGeometry(Part.Circle(V(-71, -16.9, 0), V(0, 0, 1), 1.5), False)
sketch2.addGeometry(Part.Circle(V(-71, -114, 0), V(0, 0, 1), 1.5), False)
sketch2.addGeometry(Part.Circle(V(-71, -126, 0), V(0, 0, 1), 1.5), False)
sketch2.addGeometry(Part.Circle(V(71, -16.9, 0), V(0, 0, 1), 1.5), False)
sketch2.addGeometry(Part.Circle(V(71, 126, 0), V(0, 0, 1), 1.5), False)
sketch2.addGeometry(Part.Circle(V(71, -114, 0), V(0, 0, 1), 1.5), False)
sketch2.addGeometry(Part.Circle(V(71, -126, 0), V(0, 0, 1), 1.5), False)
sketch2.addGeometry(Part.Circle(V(-40, -70, 0), V(0, 0, 1), 1.5), False)
sketch2.addGeometry(Part.Circle(V(40, -70, 0), V(0, 0, 1), 1.5), False)
sketch2.addGeometry(Part.LineSegment(V(-17, 71, 0), V(-20, 71, 0)), False)
sketch2.addGeometry(Part.ArcOfCircle(Part.Circle(V(-20, 72, 0), V(0, 0, 1), 1), math.radians(-180), math.radians(-90)), False)
sketch2.addGeometry(Part.LineSegment(V(-21, 72, 0), V(-21, 88, 0)), False)
sketch2.addGeometry(Part.ArcOfCircle(Part.Circle(V(-20, 88, 0), V(0, 0, 1), 1), math.radians(90), math.radians(180)), False)
sketch2.addGeometry(Part.LineSegment(V(-20, 89, 0), V(-17, 89, 0)), False)
sketch2.addGeometry(Part.ArcOfCircle(Part.Circle(V(-17, 88, 0), V(0, 0, 1), 1), math.radians(0), math.radians(90)), False)
sketch2.addGeometry(Part.LineSegment(V(-16, 88, 0), V(-16, 72, 0)), False)
sketch2.addGeometry(Part.ArcOfCircle(Part.Circle(V(-17, 72, 0), V(0, 0, 1), 1), math.radians(-90), math.radians(0)), False)
sketch2.addGeometry(Part.LineSegment(V(-23.5, 28.5, 0), V(-26.5, 28.5, 0)), False)
sketch2.addGeometry(Part.ArcOfCircle(Part.Circle(V(-26.5, 29.5, 0), V(0, 0, 1), 1), math.radians(-180), math.radians(-90)), False)
sketch2.addGeometry(Part.LineSegment(V(-27.5, 29.5, 0), V(-27.5, 37.5, 0)), False)
sketch2.addGeometry(Part.ArcOfCircle(Part.Circle(V(-26.5, 37.5, 0), V(0, 0, 1), 1), math.radians(90), math.radians(180)), False)
sketch2.addGeometry(Part.LineSegment(V(-26.5, 38.5, 0), V(-23.5, 38.5, 0)), False)
sketch2.addGeometry(Part.ArcOfCircle(Part.Circle(V(-23.5, 37.5, 0), V(0, 0, 1), 1), math.radians(0), math.radians(90)), False)
sketch2.addGeometry(Part.LineSegment(V(-22.5, 37.5, 0), V(-22.5, 29.5, 0)), False)
sketch2.addGeometry(Part.ArcOfCircle(Part.Circle(V(-23.5, 29.5, 0), V(0, 0, 1), 1), math.radians(-90), math.radians(0)), False)
sketch2.addGeometry(Part.LineSegment(V(23.5, 38.5, 0), V(26.5, 38.5, 0)), False)
sketch2.addGeometry(Part.ArcOfCircle(Part.Circle(V(26.5, 37.5, 0), V(0, 0, 1), 1), math.radians(0), math.radians(90)), False)
sketch2.addGeometry(Part.LineSegment(V(27.5, 37.5, 0), V(27.5, 29.5, 0)), False)
sketch2.addGeometry(Part.ArcOfCircle(Part.Circle(V(26.5, 29.5, 0), V(0, 0, 1), 1), math.radians(-90), math.radians(0)), False)
sketch2.addGeometry(Part.LineSegment(V(26.5, 28.5, 0), V(23.5, 28.5, 0)), False)
sketch2.addGeometry(Part.ArcOfCircle(Part.Circle(V(23.5, 29.5, 0), V(0, 0, 1), 1), math.radians(-180), math.radians(-90)), False)
sketch2.addGeometry(Part.LineSegment(V(22.5, 29.5, 0), V(22.5, 37.5, 0)), False)
sketch2.addGeometry(Part.ArcOfCircle(Part.Circle(V(23.5, 37.5, 0), V(0, 0, 1), 1), math.radians(90), math.radians(180)), False)
sketch2.addGeometry(Part.LineSegment(V(16, 72, 0), V(16, 88, 0)), False)
sketch2.addGeometry(Part.ArcOfCircle(Part.Circle(V(17, 88, 0), V(0, 0, 1), 1), math.radians(90), math.radians(180)), False)
sketch2.addGeometry(Part.LineSegment(V(17, 89, 0), V(20, 89, 0)), False)
sketch2.addGeometry(Part.ArcOfCircle(Part.Circle(V(20, 88, 0), V(0, 0, 1), 1), math.radians(0), math.radians(90)), False)
sketch2.addGeometry(Part.LineSegment(V(21, 88, 0), V(21, 72, 0)), False)
sketch2.addGeometry(Part.ArcOfCircle(Part.Circle(V(20, 72, 0), V(0, 0, 1), 1), math.radians(-90), math.radians(0)), False)
sketch2.addGeometry(Part.LineSegment(V(20, 71, 0), V(17, 71, 0)), False)
sketch2.addGeometry(Part.ArcOfCircle(Part.Circle(V(17, 72, 0), V(0, 0, 1), 1), math.radians(-180), math.radians(-90)), False)
sketch2.addConstraint(Sketcher.Constraint("Tangent", 10, 2, 11, 2))
sketch2.addConstraint(Sketcher.Constraint("Tangent", 11, 1, 12, 1))
sketch2.addConstraint(Sketcher.Constraint("Tangent", 12, 2, 13, 2))
sketch2.addConstraint(Sketcher.Constraint("Tangent", 13, 1, 14, 1))
sketch2.addConstraint(Sketcher.Constraint("Tangent", 14, 2, 15, 2))
sketch2.addConstraint(Sketcher.Constraint("Tangent", 15, 1, 16, 1))
sketch2.addConstraint(Sketcher.Constraint("Tangent", 16, 2, 17, 2))
sketch2.addConstraint(Sketcher.Constraint("Tangent", 17, 1, 10, 1))
sketch2.addConstraint(Sketcher.Constraint("Tangent", 18, 2, 19, 2))
sketch2.addConstraint(Sketcher.Constraint("Tangent", 19, 1, 20, 1))
sketch2.addConstraint(Sketcher.Constraint("Tangent", 20, 2, 21, 2))
sketch2.addConstraint(Sketcher.Constraint("Tangent", 21, 1, 22, 1))
sketch2.addConstraint(Sketcher.Constraint("Tangent", 22, 2, 23, 2))
sketch2.addConstraint(Sketcher.Constraint("Tangent", 23, 1, 24, 1))
sketch2.addConstraint(Sketcher.Constraint("Tangent", 24, 2, 25, 2))
sketch2.addConstraint(Sketcher.Constraint("Tangent", 25, 1, 18, 1))
sketch2.addConstraint(Sketcher.Constraint("Tangent", 26, 2, 27, 2))
sketch2.addConstraint(Sketcher.Constraint("Tangent", 27, 1, 28, 1))
sketch2.addConstraint(Sketcher.Constraint("Tangent", 28, 2, 29, 2))
sketch2.addConstraint(Sketcher.Constraint("Tangent", 29, 1, 30, 1))
sketch2.addConstraint(Sketcher.Constraint("Tangent", 30, 2, 31, 2))
sketch2.addConstraint(Sketcher.Constraint("Tangent", 31, 1, 32, 1))
sketch2.addConstraint(Sketcher.Constraint("Tangent", 32, 2, 33, 2))
sketch2.addConstraint(Sketcher.Constraint("Tangent", 33, 1, 26, 1))
sketch2.addConstraint(Sketcher.Constraint("Tangent", 34, 2, 35, 2))
sketch2.addConstraint(Sketcher.Constraint("Tangent", 35, 1, 36, 1))
sketch2.addConstraint(Sketcher.Constraint("Tangent", 36, 2, 37, 2))
sketch2.addConstraint(Sketcher.Constraint("Tangent", 37, 1, 38, 1))
sketch2.addConstraint(Sketcher.Constraint("Tangent", 38, 2, 39, 2))
sketch2.addConstraint(Sketcher.Constraint("Tangent", 39, 1, 40, 1))
sketch2.addConstraint(Sketcher.Constraint("Tangent", 40, 2, 41, 2))
sketch2.addConstraint(Sketcher.Constraint("Tangent", 41, 1, 34, 1))
sketch2.addConstraint(Sketcher.Constraint("Horizontal", 10))
sketch2.addConstraint(Sketcher.Constraint("Vertical", 12))
sketch2.addConstraint(Sketcher.Constraint("Horizontal", 14))
sketch2.addConstraint(Sketcher.Constraint("Vertical", 16))
sketch2.addConstraint(Sketcher.Constraint("Horizontal", 18))
sketch2.addConstraint(Sketcher.Constraint("Vertical", 20))
sketch2.addConstraint(Sketcher.Constraint("Horizontal", 22))
sketch2.addConstraint(Sketcher.Constraint("Vertical", 24))
sketch2.addConstraint(Sketcher.Constraint("Horizontal", 26))
sketch2.addConstraint(Sketcher.Constraint("Vertical", 28))
sketch2.addConstraint(Sketcher.Constraint("Horizontal", 30))
sketch2.addConstraint(Sketcher.Constraint("Vertical", 32))
sketch2.addConstraint(Sketcher.Constraint("Vertical", 34))
sketch2.addConstraint(Sketcher.Constraint("Horizontal", 36))
sketch2.addConstraint(Sketcher.Constraint("Vertical", 38))
sketch2.addConstraint(Sketcher.Constraint("Horizontal", 40))
sketch2.addConstraint(Sketcher.Constraint("Equal", 0, 1))
sketch2.addConstraint(Sketcher.Constraint("Equal", 1, 2))
sketch2.addConstraint(Sketcher.Constraint("Equal", 2, 3))
sketch2.addConstraint(Sketcher.Constraint("Equal", 3, 4))
sketch2.addConstraint(Sketcher.Constraint("Equal", 4, 5))
sketch2.addConstraint(Sketcher.Constraint("Equal", 5, 6))
sketch2.addConstraint(Sketcher.Constraint("Equal", 6, 7))
sketch2.addConstraint(Sketcher.Constraint("Equal", 7, 8))
sketch2.addConstraint(Sketcher.Constraint("Equal", 8, 9))
sketch2.addConstraint(Sketcher.Constraint("Equal", 11, 13))
sketch2.addConstraint(Sketcher.Constraint("Equal", 13, 15))
sketch2.addConstraint(Sketcher.Constraint("Equal", 15, 17))
sketch2.addConstraint(Sketcher.Constraint("Equal", 17, 19))
sketch2.addConstraint(Sketcher.Constraint("Equal", 19, 21))
sketch2.addConstraint(Sketcher.Constraint("Equal", 21, 23))
sketch2.addConstraint(Sketcher.Constraint("Equal", 23, 25))
sketch2.addConstraint(Sketcher.Constraint("Equal", 25, 27))
sketch2.addConstraint(Sketcher.Constraint("Equal", 27, 29))
sketch2.addConstraint(Sketcher.Constraint("Equal", 29, 31))
sketch2.addConstraint(Sketcher.Constraint("Equal", 31, 33))
sketch2.addConstraint(Sketcher.Constraint("Equal", 33, 35))
sketch2.addConstraint(Sketcher.Constraint("Equal", 35, 37))
sketch2.addConstraint(Sketcher.Constraint("Equal", 37, 39))
sketch2.addConstraint(Sketcher.Constraint("Equal", 39, 41))
sketch2.addConstraint(Sketcher.Constraint("Symmetric", 3, 3, 5, 3, -1, 1))
sketch2.addConstraint(Sketcher.Constraint("Symmetric", 0, 3, 7, 3, -1, 1))
sketch2.addConstraint(Sketcher.Constraint("Symmetric", 1, 3, 4, 3, -2))
sketch2.addConstraint(Sketcher.Constraint("Symmetric", 0, 3, 5, 3, -2))
sketch2.addConstraint(Sketcher.Constraint("Symmetric", 2, 3, 6, 3, -2))
sketch2.addConstraint(Sketcher.Constraint("Symmetric", 8, 3, 9, 3, -2))
sketch2.addConstraint(Sketcher.Constraint("Symmetric", 21, 3, 27, 3, -2))
sketch2.addConstraint(Sketcher.Constraint("Symmetric", 25, 3, 31, 3, -2))
sketch2.addConstraint(Sketcher.Constraint("Symmetric", 15, 3, 35, 3, -2))
sketch2.addConstraint(Sketcher.Constraint("Symmetric", 11, 3, 39, 3, -2))
sketch2.addConstraint(Sketcher.Constraint("Vertical", 0, 3, 1, 3))
sketch2.addConstraint(Sketcher.Constraint("Vertical", 1, 3, 2, 3))
sketch2.addConstraint(Sketcher.Constraint("Equal", 14, 18))
sketch2.addConstraint(Sketcher.Constraint("Diameter", 0, Q("3 mm")))
sketch2.addConstraint(Sketcher.Constraint("Radius", 11, Q("1 mm")))
sketch2.addConstraint(Sketcher.Constraint("DistanceX", 10, 2, 10, 1, Q("3 mm")))
sketch2.addConstraint(Sketcher.Constraint("DistanceY", 12, 1, 12, 2, Q("16 mm")))
sketch2.addConstraint(Sketcher.Constraint("DistanceY", 20, 1, 20, 2, Q("8 mm")))
sketch2.addConstraint(Sketcher.Constraint("DistanceX", 0, 3, -1, 1, Q("71 mm")))
sketch2.addConstraint(Sketcher.Constraint("DistanceY", -1, 1, 0, 3, Q("126 mm")))
sketch2.addConstraint(Sketcher.Constraint("DistanceY", 2, 3, -1, 1, Q("114 mm")))
sketch2.addConstraint(Sketcher.Constraint("DistanceX", 8, 3, -1, 1, Q("40 mm")))
sketch2.addConstraint(Sketcher.Constraint("DistanceY", 8, 3, -1, 1, Q("70 mm")))
sketch2.addConstraint(Sketcher.Constraint("DistanceX", 11, 3, -1, 1, Q("20 mm")))
sketch2.addConstraint(Sketcher.Constraint("DistanceY", -1, 1, 11, 3, Q("72 mm")))
sketch2.addConstraint(Sketcher.Constraint("DistanceX", 23, 3, 27, 3, Q("50 mm")))
sketch2.addConstraint(Sketcher.Constraint("DistanceY", -1, 1, 19, 3, Q("29.5 mm")))
sketch2.addConstraint(Sketcher.Constraint("DistanceY", 1, 3, -1, 1, Q("16.870369 mm")))
sketch2.setExpression("Constraints[85]", "Params.sketch2_diameter")
sketch2.setExpression("Constraints[86]", "Params.sketch2_radius")
sketch2.setExpression("Constraints[87]", "Params.sketch2_width")
sketch2.setExpression("Constraints[88]", "Params.sketch2_height")
sketch2.setExpression("Constraints[89]", "Params.sketch2_height2")
pocket1 = body.newObject("PartDesign::Pocket", "Pocket")
pocket1.Profile = sketch2
pocket1.setExpression("Length", "Params.pocket1_length")
pocket1.Reversed = True

doc.recompute()
